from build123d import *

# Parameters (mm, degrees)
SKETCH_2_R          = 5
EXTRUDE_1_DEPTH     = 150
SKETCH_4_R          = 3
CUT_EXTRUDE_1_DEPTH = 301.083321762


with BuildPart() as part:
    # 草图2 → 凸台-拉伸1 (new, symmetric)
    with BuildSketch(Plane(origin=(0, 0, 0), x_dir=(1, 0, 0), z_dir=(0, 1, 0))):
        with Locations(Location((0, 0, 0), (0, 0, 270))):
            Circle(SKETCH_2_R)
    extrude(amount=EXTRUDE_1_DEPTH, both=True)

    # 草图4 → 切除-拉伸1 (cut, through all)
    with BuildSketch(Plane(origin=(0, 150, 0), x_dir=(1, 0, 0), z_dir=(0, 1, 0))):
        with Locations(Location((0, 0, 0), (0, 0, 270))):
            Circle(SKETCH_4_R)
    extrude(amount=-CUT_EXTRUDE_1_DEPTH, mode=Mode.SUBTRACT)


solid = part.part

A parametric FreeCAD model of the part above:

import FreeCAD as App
import Part
import Sketcher
Q = App.Units.Quantity

doc = App.newDocument("Part")
body = doc.addObject("PartDesign::Body", "Body")

# Sketch on XZ plane
sketch1 = body.newObject("Sketcher::SketchObject", "Sketch")
sketch1.AttachmentSupport = (doc.getObject("XZ_Plane"), [""])
sketch1.MapMode = "FlatFace"
sketch1.addGeometry(Part.Circle(App.Vector(0, 0, 0), App.Vector(0, 0, 1), 5), False)
sketch1.addConstraint([
    Sketcher.Constraint("Coincident", 0, 3, -1, 1),
    Sketcher.Constraint("Diameter", 0, Q("10 mm")),
])
pad1 = body.newObject("PartDesign::Pad", "Pad")
pad1.Profile = sketch1
pad1.Length = 300
pad1.Midplane = True

# Sketch on XZ plane
sketch2 = body.newObject("Sketcher::SketchObject", "Sketch001")
sketch2.AttachmentSupport = (doc.getObject("XZ_Plane"), [""])
sketch2.MapMode = "FlatFace"
sketch2.AttachmentOffset = App.Placement(App.Vector(0, 0, -150), App.Rotation())
sketch2.addGeometry(Part.Circle(App.Vector(0, 0, 0), App.Vector(0, 0, 1), 3), False)
sketch2.addConstraint([
    Sketcher.Constraint("Coincident", 0, 3, -1, 1),
    Sketcher.Constraint("Diameter", 0, Q("6 mm")),
])
pocket1 = body.newObject("PartDesign::Pocket", "Pocket")
pocket1.Profile = sketch2
pocket1.Type = "ThroughAll"
pocket1.Reversed = True

doc.recompute()
